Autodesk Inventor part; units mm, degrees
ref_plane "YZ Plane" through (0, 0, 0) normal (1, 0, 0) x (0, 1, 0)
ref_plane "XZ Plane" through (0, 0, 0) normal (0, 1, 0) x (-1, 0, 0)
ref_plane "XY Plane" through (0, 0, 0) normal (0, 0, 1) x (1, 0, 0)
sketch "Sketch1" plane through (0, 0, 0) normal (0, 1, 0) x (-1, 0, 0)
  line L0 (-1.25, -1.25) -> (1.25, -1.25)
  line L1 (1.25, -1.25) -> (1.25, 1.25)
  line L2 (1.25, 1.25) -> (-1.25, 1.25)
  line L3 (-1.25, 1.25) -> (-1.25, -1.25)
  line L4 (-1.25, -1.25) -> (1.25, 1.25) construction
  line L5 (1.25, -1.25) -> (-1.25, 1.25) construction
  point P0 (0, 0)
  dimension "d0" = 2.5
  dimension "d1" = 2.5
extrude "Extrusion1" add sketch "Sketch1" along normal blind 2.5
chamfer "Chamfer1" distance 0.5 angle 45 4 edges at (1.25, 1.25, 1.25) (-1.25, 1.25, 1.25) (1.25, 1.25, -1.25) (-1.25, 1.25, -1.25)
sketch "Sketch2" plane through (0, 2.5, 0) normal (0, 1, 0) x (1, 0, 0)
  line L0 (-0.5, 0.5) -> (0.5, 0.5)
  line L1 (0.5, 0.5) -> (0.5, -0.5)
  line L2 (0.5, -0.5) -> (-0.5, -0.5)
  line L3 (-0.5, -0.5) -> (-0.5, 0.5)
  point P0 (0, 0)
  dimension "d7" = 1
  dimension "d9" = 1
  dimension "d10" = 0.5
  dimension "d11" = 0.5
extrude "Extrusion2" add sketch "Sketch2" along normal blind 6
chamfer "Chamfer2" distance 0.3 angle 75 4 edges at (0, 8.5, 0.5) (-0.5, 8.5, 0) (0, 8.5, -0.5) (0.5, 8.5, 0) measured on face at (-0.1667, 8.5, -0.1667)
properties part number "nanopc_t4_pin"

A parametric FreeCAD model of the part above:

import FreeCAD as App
import Part
import Sketcher


def edges_at(feature, points):
    """Names of the edges that pass closest to the given points."""
    edges = feature.Shape.Edges
    near = lambda p: min(range(len(edges)), key=lambda i: edges[i].distToShape(Part.Vertex(*p))[0])
    return sorted({f"Edge{near(p) + 1}" for p in points})


def add_polygon(sketch, points):
    """Adds a closed chain of lines whose ends are joined by coincident constraints."""
    first, n = sketch.GeometryCount, len(points)
    for a, b in zip(points, points[1:] + points[:1]):
        sketch.addGeometry(Part.LineSegment(App.Vector(*a, 0), App.Vector(*b, 0)), False)
    for i in range(n):
        sketch.addConstraint(Sketcher.Constraint("Coincident", first + i, 2, first + (i + 1) % n, 1))

doc = App.newDocument("Part")
body = doc.addObject("PartDesign::Body", "Body")

# Sketch on XZ plane
sketch1 = body.newObject("Sketcher::SketchObject", "Sketch")
sketch1.AttachmentSupport = (doc.getObject("XZ_Plane"), [""])
sketch1.MapMode = "FlatFace"
add_polygon(sketch1, [(1.25, 1.25), (1.25, -1.25), (-1.25, -1.25), (-1.25, 1.25)])  # lines 0-3
sketch1.addConstraint([
    Sketcher.Constraint("Vertical", 0),
    Sketcher.Constraint("Horizontal", 1),
    Sketcher.Constraint("Vertical", 2),
    Sketcher.Constraint("Horizontal", 3),
    Sketcher.Constraint("Symmetric", 0, 2, 2, 2, -1, 1),
    Sketcher.Constraint("Equal", 3, 0),
    Sketcher.Constraint("DistanceX", 1, 2, 1, 1, 2.5),
])
pad1 = body.newObject("PartDesign::Pad", "Pad")
pad1.Profile = sketch1
pad1.Length = 2.5
pad1.Reversed = True
doc.recompute()

chamfer = body.newObject("PartDesign::Chamfer", "Chamfer")
chamfer.Base = (pad1, edges_at(pad1, [
    (1.25, 1.25, 1.25),
    (-1.25, 1.25, 1.25),
    (1.25, 1.25, -1.25),
    (-1.25, 1.25, -1.25),
]))
chamfer.Size = 0.5

# Sketch on XZ plane
sketch2 = body.newObject("Sketcher::SketchObject", "Sketch001")
sketch2.AttachmentSupport = (doc.getObject("XZ_Plane"), [""])
sketch2.MapMode = "FlatFace"
sketch2.AttachmentOffset = App.Placement(App.Vector(0, 0, -2.5), App.Rotation())
add_polygon(sketch2, [(0.5, -0.5), (-0.5, -0.5), (-0.5, 0.5), (0.5, 0.5)])  # lines 0-3
sketch2.addConstraint([
    Sketcher.Constraint("Horizontal", 0),
    Sketcher.Constraint("Vertical", 1),
    Sketcher.Constraint("Horizontal", 2),
    Sketcher.Constraint("Vertical", 3),
    Sketcher.Constraint("Symmetric", 0, 2, 2, 2, -1, 1),
    Sketcher.Constraint("Equal", 2, 1),
    Sketcher.Constraint("DistanceX", 0, 2, 0, 1, 1.0),
])
pad2 = body.newObject("PartDesign::Pad", "Pad001")
pad2.Profile = sketch2
pad2.Length = 6
pad2.Reversed = True
doc.recompute()

chamfer2 = body.newObject("PartDesign::Chamfer", "Chamfer001")
chamfer2.Base = (pad2, edges_at(pad2, [
    (0, 8.5, 0.5),
    (-0.5, 8.5, 0),
    (0, 8.5, -0.5),
    (0.5, 8.5, 0),
]))
chamfer2.ChamferType = "Distance and Angle"
chamfer2.Size = 0.3
chamfer2.Angle = 75
chamfer2.FlipDirection = True

doc.recompute()
